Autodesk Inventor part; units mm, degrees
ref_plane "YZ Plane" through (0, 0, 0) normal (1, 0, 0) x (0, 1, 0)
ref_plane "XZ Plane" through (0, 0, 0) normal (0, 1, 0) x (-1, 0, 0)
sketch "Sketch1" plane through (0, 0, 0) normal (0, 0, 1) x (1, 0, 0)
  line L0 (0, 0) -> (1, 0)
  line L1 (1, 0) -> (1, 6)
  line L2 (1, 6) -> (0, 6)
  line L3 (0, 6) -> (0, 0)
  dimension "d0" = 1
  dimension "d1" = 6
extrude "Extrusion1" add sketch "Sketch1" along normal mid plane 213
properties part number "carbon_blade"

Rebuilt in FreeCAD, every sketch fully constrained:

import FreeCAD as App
import Part
import Sketcher

doc = App.newDocument("Part")
body = doc.addObject("PartDesign::Body", "Body")

sketch1 = body.newObject("Sketcher::SketchObject", "Sketch")
sketch1.AttachmentSupport = (doc.getObject("XY_Plane"), [""])
sketch1.MapMode = "FlatFace"
sketch1.addGeometry(Part.LineSegment(App.Vector(0, 6, 0), App.Vector(0, 0, 0)), False)
sketch1.addGeometry(Part.LineSegment(App.Vector(0, 0, 0), App.Vector(1, 0, 0)), False)
sketch1.addGeometry(Part.LineSegment(App.Vector(1, 0, 0), App.Vector(1, 6, 0)), False)
sketch1.addGeometry(Part.LineSegment(App.Vector(1, 6, 0), App.Vector(0, 6, 0)), False)
sketch1.addConstraint(Sketcher.Constraint("Coincident", 0, 2, 1, 1))
sketch1.addConstraint(Sketcher.Constraint("Coincident", 1, 2, 2, 1))
sketch1.addConstraint(Sketcher.Constraint("Coincident", 2, 2, 3, 1))
sketch1.addConstraint(Sketcher.Constraint("Coincident", 3, 2, 0, 1))
sketch1.addConstraint(Sketcher.Constraint("Vertical", 0))
sketch1.addConstraint(Sketcher.Constraint("Horizontal", 1))
sketch1.addConstraint(Sketcher.Constraint("Vertical", 2))
sketch1.addConstraint(Sketcher.Constraint("Horizontal", 3))
sketch1.addConstraint(Sketcher.Constraint("Coincident", 0, 2, -1, 1))
sketch1.addConstraint(Sketcher.Constraint("DistanceX", 1, 1, 1, 2, 1.0))
sketch1.addConstraint(Sketcher.Constraint("DistanceY", 0, 2, 0, 1, 6.0))
pad1 = body.newObject("PartDesign::Pad", "Pad")
pad1.Profile = sketch1
pad1.Length = 213
pad1.Midplane = True

doc.recompute()
